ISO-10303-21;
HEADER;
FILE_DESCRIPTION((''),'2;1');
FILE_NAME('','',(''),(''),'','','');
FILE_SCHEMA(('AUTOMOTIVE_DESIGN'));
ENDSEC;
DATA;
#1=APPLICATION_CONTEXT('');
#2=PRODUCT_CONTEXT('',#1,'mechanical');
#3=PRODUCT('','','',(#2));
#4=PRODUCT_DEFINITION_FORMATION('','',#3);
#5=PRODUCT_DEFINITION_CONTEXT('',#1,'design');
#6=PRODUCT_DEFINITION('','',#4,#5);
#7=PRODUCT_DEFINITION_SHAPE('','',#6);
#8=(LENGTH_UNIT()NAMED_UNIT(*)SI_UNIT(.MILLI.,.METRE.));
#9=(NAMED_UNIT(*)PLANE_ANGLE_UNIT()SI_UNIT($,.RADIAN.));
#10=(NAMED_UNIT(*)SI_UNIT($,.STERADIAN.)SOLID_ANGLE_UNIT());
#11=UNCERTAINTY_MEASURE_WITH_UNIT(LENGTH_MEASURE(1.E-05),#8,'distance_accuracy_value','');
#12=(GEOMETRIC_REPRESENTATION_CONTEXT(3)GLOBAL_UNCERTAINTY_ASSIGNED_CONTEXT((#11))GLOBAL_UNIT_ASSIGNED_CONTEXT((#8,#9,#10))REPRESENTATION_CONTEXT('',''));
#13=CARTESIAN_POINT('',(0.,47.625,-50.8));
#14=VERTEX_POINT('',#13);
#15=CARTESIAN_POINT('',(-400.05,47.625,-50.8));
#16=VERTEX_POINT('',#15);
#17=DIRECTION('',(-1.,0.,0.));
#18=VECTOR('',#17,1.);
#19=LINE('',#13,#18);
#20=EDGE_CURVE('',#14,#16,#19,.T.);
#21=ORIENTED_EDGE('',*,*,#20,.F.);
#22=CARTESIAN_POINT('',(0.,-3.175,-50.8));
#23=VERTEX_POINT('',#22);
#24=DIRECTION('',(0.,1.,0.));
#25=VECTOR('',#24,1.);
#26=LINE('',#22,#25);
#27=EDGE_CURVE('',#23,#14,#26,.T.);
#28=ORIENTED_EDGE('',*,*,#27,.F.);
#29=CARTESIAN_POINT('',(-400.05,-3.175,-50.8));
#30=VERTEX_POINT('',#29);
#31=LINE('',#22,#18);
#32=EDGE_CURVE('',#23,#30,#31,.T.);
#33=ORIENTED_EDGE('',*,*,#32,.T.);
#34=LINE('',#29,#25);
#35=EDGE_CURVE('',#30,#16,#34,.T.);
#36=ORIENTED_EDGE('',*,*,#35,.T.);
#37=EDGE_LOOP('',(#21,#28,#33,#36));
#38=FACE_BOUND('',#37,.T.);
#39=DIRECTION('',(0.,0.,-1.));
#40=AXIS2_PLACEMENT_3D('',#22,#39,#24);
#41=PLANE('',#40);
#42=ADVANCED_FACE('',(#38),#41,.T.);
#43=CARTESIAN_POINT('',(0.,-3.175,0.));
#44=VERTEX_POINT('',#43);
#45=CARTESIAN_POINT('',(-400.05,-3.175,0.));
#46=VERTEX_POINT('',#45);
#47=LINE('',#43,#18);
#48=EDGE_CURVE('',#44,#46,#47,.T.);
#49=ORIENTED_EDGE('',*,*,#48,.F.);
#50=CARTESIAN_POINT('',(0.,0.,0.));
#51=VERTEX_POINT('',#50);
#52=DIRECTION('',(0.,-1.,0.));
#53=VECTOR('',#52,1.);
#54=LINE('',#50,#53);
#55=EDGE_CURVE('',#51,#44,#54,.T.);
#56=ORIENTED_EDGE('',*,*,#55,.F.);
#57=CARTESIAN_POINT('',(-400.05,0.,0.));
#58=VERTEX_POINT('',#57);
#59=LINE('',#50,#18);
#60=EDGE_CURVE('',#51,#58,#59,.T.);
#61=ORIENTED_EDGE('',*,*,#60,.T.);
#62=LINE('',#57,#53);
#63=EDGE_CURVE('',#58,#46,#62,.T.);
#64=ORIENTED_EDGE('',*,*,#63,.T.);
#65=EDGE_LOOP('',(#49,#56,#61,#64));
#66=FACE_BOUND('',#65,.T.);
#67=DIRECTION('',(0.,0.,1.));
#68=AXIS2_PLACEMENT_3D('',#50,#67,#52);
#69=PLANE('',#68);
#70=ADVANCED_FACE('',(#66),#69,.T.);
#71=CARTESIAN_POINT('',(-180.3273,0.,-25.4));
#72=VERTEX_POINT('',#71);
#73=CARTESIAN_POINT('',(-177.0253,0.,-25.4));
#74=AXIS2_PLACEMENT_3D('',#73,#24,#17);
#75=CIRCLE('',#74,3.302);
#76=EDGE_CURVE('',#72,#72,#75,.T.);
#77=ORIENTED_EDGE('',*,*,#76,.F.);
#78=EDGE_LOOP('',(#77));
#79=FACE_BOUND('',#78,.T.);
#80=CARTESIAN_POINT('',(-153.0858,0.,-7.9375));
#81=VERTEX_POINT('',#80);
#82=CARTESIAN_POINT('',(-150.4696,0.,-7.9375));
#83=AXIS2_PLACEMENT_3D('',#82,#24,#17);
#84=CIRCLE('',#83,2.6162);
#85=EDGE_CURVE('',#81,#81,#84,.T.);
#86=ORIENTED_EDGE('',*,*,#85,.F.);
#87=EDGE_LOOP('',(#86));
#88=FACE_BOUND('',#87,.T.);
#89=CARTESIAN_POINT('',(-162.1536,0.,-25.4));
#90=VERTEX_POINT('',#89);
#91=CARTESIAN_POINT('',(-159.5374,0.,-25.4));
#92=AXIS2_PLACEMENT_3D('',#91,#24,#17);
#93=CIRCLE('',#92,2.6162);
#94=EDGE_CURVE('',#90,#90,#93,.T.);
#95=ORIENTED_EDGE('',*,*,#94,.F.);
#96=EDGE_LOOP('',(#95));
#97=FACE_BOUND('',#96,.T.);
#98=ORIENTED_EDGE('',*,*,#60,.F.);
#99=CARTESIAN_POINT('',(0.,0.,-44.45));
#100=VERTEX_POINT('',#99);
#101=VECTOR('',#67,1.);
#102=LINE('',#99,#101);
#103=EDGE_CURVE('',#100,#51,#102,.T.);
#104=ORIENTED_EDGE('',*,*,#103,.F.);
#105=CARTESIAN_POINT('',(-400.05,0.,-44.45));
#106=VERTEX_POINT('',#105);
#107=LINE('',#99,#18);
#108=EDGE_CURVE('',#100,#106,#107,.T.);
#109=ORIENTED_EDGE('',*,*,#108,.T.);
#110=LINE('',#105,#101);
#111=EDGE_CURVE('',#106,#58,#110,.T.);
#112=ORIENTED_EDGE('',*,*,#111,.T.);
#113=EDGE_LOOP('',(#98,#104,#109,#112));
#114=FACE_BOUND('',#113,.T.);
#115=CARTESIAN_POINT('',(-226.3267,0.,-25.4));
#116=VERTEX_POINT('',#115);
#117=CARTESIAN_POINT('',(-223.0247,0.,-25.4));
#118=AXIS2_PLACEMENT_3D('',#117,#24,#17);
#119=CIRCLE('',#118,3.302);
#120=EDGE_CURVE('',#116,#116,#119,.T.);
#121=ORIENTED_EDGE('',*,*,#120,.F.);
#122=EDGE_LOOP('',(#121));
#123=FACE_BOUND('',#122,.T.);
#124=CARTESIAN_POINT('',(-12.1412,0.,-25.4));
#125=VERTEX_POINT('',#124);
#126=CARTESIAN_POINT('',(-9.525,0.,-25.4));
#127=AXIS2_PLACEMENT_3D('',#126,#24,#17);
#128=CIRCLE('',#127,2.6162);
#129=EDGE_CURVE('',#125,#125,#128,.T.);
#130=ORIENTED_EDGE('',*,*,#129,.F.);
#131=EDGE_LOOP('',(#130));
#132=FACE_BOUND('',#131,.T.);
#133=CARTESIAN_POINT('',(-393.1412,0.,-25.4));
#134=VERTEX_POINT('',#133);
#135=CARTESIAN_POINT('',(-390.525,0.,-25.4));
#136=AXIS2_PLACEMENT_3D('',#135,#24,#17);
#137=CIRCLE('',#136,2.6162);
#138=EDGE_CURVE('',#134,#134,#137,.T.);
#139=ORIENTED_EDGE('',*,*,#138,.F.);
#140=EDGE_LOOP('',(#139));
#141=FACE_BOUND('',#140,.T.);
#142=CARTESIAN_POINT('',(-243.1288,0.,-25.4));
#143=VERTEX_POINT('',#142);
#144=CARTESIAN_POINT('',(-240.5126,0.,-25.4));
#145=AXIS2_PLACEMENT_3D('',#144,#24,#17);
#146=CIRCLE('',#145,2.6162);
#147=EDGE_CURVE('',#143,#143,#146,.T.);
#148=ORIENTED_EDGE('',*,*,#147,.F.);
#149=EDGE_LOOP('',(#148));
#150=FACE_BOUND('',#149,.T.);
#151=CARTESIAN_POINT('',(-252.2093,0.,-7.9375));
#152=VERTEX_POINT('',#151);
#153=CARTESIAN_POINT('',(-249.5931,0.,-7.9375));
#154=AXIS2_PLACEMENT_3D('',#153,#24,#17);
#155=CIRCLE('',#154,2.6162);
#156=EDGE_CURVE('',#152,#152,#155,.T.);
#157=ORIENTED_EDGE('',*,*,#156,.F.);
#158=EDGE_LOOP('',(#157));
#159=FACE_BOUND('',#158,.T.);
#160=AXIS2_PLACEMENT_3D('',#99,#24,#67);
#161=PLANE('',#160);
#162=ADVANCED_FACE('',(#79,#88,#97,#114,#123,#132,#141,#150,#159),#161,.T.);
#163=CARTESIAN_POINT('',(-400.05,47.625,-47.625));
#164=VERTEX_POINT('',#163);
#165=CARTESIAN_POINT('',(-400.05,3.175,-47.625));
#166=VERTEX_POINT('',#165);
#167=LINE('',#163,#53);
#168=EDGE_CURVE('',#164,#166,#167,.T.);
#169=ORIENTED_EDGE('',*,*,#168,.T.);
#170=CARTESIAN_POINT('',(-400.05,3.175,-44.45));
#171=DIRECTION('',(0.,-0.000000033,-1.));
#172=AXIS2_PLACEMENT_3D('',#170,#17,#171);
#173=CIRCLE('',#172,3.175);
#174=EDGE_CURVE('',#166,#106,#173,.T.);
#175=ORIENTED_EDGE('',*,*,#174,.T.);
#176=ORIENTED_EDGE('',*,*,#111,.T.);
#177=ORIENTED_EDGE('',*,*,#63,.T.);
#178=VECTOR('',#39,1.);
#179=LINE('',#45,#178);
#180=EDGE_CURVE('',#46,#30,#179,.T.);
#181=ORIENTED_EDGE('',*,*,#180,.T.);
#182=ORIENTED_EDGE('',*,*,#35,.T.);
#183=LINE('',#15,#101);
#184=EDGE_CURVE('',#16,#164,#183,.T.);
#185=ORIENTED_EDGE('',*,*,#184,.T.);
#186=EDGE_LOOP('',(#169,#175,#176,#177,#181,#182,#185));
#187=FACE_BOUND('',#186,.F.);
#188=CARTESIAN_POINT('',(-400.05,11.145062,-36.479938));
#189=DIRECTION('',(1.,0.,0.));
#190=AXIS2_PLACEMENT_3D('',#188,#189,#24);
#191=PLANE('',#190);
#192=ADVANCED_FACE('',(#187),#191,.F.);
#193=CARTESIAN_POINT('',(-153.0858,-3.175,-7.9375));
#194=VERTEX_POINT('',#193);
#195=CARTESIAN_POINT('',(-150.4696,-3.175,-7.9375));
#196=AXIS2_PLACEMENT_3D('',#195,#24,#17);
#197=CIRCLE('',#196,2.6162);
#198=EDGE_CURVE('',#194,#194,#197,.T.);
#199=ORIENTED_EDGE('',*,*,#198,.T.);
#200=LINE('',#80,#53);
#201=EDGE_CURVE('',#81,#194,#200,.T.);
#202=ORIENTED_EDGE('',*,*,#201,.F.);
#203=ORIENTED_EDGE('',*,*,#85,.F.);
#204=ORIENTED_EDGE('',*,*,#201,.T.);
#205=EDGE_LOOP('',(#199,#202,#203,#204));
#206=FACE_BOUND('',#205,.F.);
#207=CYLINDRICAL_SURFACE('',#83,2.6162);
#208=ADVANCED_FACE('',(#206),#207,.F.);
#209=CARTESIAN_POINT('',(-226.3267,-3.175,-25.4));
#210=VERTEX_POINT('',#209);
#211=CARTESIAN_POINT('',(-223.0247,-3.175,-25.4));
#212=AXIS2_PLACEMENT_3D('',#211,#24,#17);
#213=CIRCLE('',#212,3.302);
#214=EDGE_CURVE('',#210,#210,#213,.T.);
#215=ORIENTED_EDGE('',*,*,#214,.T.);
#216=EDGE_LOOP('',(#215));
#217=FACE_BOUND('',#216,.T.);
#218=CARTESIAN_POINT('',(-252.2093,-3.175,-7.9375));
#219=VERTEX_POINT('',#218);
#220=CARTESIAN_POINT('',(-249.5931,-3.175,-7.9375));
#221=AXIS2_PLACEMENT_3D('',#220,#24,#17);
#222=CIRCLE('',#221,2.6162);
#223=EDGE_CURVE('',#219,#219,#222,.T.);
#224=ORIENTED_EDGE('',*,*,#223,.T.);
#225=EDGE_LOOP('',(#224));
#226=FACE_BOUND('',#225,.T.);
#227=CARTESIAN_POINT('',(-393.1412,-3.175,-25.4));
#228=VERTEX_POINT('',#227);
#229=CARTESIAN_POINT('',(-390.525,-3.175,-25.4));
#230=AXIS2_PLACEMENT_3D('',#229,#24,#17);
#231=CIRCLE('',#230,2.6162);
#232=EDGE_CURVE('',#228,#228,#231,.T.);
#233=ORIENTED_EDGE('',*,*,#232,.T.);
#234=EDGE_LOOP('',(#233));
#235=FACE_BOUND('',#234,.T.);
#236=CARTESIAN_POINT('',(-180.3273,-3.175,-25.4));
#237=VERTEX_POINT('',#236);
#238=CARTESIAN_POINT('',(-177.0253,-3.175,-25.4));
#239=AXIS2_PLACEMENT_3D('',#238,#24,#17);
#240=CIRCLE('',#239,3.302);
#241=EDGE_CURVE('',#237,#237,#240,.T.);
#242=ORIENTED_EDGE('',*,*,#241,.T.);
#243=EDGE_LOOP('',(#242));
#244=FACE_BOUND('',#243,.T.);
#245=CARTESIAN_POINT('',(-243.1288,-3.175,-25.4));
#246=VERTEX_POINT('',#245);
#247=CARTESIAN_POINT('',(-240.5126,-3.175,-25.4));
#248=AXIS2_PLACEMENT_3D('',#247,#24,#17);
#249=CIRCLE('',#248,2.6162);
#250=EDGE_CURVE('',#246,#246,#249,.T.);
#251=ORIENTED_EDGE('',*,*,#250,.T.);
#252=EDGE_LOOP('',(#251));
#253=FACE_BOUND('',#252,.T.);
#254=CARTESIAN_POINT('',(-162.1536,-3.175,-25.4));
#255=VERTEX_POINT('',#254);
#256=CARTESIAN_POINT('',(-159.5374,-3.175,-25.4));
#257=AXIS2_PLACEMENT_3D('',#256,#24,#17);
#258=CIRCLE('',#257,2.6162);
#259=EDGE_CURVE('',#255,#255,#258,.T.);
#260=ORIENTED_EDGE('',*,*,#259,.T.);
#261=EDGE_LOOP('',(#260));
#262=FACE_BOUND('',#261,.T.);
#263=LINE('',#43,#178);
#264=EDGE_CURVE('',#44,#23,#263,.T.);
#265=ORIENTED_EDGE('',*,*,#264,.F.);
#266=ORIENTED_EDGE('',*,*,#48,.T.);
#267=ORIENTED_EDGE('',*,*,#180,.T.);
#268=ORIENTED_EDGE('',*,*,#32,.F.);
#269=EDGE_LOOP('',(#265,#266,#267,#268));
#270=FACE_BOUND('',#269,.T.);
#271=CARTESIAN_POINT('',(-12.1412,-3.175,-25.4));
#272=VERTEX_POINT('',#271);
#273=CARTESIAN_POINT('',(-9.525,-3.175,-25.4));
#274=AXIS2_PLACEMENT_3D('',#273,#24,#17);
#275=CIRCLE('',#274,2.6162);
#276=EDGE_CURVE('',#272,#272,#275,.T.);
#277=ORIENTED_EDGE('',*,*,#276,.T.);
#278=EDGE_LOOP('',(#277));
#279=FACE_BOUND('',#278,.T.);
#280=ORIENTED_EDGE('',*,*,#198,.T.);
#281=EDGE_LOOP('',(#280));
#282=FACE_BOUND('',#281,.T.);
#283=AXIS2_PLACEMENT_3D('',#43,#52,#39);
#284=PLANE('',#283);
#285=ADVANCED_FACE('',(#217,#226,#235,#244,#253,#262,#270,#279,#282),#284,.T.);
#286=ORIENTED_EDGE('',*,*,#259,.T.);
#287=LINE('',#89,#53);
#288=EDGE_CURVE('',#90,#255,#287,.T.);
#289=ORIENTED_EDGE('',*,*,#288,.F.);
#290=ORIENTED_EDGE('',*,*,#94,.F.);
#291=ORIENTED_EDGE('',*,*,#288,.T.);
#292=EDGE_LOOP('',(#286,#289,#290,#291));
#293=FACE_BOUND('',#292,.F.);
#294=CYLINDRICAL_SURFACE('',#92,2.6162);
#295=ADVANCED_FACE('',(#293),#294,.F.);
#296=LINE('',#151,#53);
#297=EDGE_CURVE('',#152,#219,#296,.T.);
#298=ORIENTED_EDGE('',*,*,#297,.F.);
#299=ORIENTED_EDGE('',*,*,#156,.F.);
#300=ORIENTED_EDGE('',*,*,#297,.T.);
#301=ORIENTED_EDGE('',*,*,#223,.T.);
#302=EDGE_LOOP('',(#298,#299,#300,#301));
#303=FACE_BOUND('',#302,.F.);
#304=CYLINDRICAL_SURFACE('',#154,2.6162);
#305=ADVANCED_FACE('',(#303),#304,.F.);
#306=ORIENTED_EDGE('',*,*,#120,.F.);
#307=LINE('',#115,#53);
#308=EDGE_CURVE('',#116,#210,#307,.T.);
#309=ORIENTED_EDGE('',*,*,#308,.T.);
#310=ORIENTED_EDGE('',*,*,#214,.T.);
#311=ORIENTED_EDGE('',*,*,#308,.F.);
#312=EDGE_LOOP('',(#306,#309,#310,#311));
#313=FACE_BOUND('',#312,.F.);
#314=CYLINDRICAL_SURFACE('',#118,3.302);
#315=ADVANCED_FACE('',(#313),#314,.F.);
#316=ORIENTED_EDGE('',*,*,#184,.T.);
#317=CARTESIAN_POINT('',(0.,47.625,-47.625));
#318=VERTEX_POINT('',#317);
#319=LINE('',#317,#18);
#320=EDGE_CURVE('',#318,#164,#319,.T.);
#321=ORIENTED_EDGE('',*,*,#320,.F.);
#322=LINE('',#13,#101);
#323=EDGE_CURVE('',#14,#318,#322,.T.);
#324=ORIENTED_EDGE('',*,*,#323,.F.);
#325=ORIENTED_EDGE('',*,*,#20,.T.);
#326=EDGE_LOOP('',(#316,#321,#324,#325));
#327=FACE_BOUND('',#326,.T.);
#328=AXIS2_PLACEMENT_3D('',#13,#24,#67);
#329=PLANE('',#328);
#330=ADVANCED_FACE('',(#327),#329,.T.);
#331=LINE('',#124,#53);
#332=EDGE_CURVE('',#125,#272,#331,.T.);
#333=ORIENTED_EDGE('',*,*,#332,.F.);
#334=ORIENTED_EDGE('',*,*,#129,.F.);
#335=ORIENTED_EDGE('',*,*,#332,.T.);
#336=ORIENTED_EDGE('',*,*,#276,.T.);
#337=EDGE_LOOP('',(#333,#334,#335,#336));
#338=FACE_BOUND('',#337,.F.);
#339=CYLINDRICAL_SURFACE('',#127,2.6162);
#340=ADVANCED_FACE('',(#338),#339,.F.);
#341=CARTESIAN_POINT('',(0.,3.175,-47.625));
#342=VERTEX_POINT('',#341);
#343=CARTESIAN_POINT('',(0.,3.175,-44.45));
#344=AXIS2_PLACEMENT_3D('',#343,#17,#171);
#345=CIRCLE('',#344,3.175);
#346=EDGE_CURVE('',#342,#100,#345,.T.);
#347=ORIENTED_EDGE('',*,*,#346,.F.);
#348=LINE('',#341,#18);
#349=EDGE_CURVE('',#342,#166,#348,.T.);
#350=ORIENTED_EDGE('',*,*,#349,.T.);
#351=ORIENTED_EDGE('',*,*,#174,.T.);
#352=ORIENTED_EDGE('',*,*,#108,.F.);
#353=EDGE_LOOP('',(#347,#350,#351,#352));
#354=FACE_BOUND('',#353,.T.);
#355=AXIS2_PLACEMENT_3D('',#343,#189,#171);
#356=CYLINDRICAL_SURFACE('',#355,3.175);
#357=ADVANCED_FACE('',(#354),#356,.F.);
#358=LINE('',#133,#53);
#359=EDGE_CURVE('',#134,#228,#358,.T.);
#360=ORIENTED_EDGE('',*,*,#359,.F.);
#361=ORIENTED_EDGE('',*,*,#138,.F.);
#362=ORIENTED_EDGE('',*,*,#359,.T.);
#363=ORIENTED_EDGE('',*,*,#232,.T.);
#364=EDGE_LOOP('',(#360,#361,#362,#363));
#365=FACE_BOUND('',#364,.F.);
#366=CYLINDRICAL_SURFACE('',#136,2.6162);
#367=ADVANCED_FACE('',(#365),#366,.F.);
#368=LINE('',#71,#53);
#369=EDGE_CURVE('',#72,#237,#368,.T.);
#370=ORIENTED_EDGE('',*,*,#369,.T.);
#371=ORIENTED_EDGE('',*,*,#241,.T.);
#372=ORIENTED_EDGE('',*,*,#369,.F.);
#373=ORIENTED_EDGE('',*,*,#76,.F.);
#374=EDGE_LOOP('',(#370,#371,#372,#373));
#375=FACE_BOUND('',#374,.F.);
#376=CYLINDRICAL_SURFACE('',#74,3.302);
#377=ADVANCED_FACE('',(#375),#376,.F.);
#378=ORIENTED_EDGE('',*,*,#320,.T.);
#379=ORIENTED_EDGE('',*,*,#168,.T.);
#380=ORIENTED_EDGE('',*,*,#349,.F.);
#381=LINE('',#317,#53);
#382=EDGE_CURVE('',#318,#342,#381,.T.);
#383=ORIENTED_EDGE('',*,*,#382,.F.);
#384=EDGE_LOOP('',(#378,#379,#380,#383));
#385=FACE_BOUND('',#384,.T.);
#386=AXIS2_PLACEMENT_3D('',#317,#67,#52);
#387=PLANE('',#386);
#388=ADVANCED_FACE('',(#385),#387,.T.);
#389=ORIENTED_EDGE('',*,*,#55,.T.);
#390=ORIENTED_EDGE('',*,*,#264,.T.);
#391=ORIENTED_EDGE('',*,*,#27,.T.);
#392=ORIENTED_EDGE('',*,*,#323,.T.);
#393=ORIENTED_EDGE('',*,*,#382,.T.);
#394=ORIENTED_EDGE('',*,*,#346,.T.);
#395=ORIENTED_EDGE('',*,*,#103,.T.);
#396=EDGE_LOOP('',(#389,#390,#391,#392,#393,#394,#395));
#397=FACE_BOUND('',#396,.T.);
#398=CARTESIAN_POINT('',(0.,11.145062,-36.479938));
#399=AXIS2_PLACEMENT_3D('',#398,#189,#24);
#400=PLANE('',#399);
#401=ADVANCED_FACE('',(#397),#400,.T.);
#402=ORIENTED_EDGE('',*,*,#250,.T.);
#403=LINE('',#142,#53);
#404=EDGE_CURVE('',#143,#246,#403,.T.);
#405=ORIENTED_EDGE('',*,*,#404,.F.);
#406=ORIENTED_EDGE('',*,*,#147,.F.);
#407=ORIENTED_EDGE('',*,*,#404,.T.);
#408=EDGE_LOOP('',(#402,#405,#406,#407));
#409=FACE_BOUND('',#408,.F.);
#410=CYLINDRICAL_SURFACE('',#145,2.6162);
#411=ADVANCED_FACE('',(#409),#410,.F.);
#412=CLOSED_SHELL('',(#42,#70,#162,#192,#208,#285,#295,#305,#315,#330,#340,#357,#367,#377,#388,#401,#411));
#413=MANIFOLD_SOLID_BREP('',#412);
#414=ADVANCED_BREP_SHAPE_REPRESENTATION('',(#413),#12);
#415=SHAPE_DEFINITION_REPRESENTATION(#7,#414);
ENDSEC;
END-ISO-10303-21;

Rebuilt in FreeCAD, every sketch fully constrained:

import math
import FreeCAD as App
import Part
import Sketcher

V = App.Vector
Q = App.Units.Quantity

doc = App.newDocument("Part")
body = doc.addObject("PartDesign::Body", "Body")

sketch1 = body.newObject("Sketcher::SketchObject", "Sketch")
sketch1.AttachmentSupport = (doc.getObject("YZ_Plane"), [""])
sketch1.MapMode = "FlatFace"
sketch1.addGeometry([
    Part.LineSegment(V(0, -44.45, 0), V(0, 0, 0)),
    Part.LineSegment(V(0, 0, 0), V(-3.175, 0, 0)),
    Part.LineSegment(V(-3.175, 0, 0), V(-3.175, -50.8, 0)),
    Part.LineSegment(V(-3.175, -50.8, 0), V(47.625, -50.8, 0)),
    Part.LineSegment(V(47.625, -50.8, 0), V(47.625, -47.625, 0)),
    Part.LineSegment(V(47.625, -47.625, 0), V(3.175, -47.625, 0)),
    Part.ArcOfCircle(Part.Circle(V(3.175, -44.45, 0), V(0, 0, 1), 3.175), math.radians(-179.999998), math.radians(-90.000002)),
], False)
sketch1.addConstraint([
    Sketcher.Constraint("Coincident", 0, 2, 1, 1),
    Sketcher.Constraint("Coincident", 1, 2, 2, 1),
    Sketcher.Constraint("Coincident", 2, 2, 3, 1),
    Sketcher.Constraint("Coincident", 3, 2, 4, 1),
    Sketcher.Constraint("Coincident", 4, 2, 5, 1),
    Sketcher.Constraint("Tangent", 5, 2, 6, 2),
    Sketcher.Constraint("Tangent", 6, 1, 0, 1),
    Sketcher.Constraint("Vertical", 0),
    Sketcher.Constraint("Horizontal", 1),
    Sketcher.Constraint("Vertical", 2),
    Sketcher.Constraint("Horizontal", 3),
    Sketcher.Constraint("Vertical", 4),
    Sketcher.Constraint("Horizontal", 5),
    Sketcher.Constraint("Coincident", 0, 2, -1, 1),
    Sketcher.Constraint("Equal", 5, 0),
    Sketcher.Constraint("Equal", 3, 2),
    Sketcher.Constraint("DistanceX", 3, 1, 3, 2, Q("2 in")),
    Sketcher.Constraint("Radius", 6, Q("0.125 in")),
    Sketcher.Constraint("DistanceX", 5, 2, 5, 1, Q("1.75 in")),
])
pad1 = body.newObject("PartDesign::Pad", "Pad")
pad1.Profile = sketch1
pad1.Length = Q("15.75 in")
pad1.Reversed = True

sketch2 = body.newObject("Sketcher::SketchObject", "Sketch001")
sketch2.AttachmentSupport = (doc.getObject("XZ_Plane"), [""])
sketch2.MapMode = "FlatFace"
sketch2.addGeometry([
    Part.Circle(V(-9.525, -25.4, 0), V(0, 0, 1), 2.6162),
    Part.Circle(V(-390.525, -25.4, 0), V(0, 0, 1), 2.6162),
    Part.Circle(V(-159.5374, -25.4, 0), V(0, 0, 1), 2.6162),
    Part.Circle(V(-240.5126, -25.4, 0), V(0, 0, 1), 2.6162),
    Part.Circle(V(-223.0247, -25.4, 0), V(0, 0, 1), 3.302),
    Part.Circle(V(-177.0253, -25.4, 0), V(0, 0, 1), 3.302),
    Part.Circle(V(-249.5931, -7.9375, 0), V(0, 0, 1), 2.6162),
    Part.Circle(V(-150.4696, -7.9375, 0), V(0, 0, 1), 2.6162),
], False)
sketch2.addConstraint([
    Sketcher.Constraint("Equal", 0, 1),
    Sketcher.Constraint("Equal", 1, 2),
    Sketcher.Constraint("Equal", 2, 3),
    Sketcher.Constraint("Equal", 4, 5),
    Sketcher.Constraint("Equal", 3, 6),
    Sketcher.Constraint("Equal", 6, 7),
    Sketcher.Constraint("Horizontal", 0, 3, 1, 3),
    Sketcher.Constraint("Horizontal", 1, 3, 2, 3),
    Sketcher.Constraint("Horizontal", 2, 3, 3, 3),
    Sketcher.Constraint("Horizontal", 3, 3, 4, 3),
    Sketcher.Constraint("Horizontal", 4, 3, 5, 3),
    Sketcher.Constraint("Horizontal", 6, 3, 7, 3),
    Sketcher.Constraint("Diameter", 4, Q("0.26 in")),
    Sketcher.Constraint("Diameter", 0, Q("0.206 in")),
    Sketcher.Constraint("DistanceY", 0, 3, -1, 1, Q("1 in")),
    Sketcher.Constraint("DistanceX", 1, 3, 0, 3, Q("15 in")),
    Sketcher.Constraint("DistanceX", 0, 3, -1, 1, Q("0.375 in")),
    Sketcher.Constraint("DistanceX", 2, 3, -1, 1, Q("6.281 in")),
    Sketcher.Constraint("DistanceX", 3, 3, -1, 1, Q("9.469 in")),
    Sketcher.Constraint("DistanceY", 6, 3, -1, 1, Q("0.3125 in")),
    Sketcher.Constraint("DistanceX", 7, 3, -1, 1, Q("5.924 in")),
    Sketcher.Constraint("DistanceX", 4, 3, 5, 3, Q("1.811 in")),
    Sketcher.Constraint("DistanceX", 6, 3, 4, 3, Q("1.046 in")),
    Sketcher.Constraint("DistanceX", 4, 3, -1, 1, Q("8.7805 in")),
])
pocket1 = body.newObject("PartDesign::Pocket", "Pocket")
pocket1.Profile = sketch2
pocket1.Type = "ThroughAll"
pocket1.Reversed = True

doc.recompute()
